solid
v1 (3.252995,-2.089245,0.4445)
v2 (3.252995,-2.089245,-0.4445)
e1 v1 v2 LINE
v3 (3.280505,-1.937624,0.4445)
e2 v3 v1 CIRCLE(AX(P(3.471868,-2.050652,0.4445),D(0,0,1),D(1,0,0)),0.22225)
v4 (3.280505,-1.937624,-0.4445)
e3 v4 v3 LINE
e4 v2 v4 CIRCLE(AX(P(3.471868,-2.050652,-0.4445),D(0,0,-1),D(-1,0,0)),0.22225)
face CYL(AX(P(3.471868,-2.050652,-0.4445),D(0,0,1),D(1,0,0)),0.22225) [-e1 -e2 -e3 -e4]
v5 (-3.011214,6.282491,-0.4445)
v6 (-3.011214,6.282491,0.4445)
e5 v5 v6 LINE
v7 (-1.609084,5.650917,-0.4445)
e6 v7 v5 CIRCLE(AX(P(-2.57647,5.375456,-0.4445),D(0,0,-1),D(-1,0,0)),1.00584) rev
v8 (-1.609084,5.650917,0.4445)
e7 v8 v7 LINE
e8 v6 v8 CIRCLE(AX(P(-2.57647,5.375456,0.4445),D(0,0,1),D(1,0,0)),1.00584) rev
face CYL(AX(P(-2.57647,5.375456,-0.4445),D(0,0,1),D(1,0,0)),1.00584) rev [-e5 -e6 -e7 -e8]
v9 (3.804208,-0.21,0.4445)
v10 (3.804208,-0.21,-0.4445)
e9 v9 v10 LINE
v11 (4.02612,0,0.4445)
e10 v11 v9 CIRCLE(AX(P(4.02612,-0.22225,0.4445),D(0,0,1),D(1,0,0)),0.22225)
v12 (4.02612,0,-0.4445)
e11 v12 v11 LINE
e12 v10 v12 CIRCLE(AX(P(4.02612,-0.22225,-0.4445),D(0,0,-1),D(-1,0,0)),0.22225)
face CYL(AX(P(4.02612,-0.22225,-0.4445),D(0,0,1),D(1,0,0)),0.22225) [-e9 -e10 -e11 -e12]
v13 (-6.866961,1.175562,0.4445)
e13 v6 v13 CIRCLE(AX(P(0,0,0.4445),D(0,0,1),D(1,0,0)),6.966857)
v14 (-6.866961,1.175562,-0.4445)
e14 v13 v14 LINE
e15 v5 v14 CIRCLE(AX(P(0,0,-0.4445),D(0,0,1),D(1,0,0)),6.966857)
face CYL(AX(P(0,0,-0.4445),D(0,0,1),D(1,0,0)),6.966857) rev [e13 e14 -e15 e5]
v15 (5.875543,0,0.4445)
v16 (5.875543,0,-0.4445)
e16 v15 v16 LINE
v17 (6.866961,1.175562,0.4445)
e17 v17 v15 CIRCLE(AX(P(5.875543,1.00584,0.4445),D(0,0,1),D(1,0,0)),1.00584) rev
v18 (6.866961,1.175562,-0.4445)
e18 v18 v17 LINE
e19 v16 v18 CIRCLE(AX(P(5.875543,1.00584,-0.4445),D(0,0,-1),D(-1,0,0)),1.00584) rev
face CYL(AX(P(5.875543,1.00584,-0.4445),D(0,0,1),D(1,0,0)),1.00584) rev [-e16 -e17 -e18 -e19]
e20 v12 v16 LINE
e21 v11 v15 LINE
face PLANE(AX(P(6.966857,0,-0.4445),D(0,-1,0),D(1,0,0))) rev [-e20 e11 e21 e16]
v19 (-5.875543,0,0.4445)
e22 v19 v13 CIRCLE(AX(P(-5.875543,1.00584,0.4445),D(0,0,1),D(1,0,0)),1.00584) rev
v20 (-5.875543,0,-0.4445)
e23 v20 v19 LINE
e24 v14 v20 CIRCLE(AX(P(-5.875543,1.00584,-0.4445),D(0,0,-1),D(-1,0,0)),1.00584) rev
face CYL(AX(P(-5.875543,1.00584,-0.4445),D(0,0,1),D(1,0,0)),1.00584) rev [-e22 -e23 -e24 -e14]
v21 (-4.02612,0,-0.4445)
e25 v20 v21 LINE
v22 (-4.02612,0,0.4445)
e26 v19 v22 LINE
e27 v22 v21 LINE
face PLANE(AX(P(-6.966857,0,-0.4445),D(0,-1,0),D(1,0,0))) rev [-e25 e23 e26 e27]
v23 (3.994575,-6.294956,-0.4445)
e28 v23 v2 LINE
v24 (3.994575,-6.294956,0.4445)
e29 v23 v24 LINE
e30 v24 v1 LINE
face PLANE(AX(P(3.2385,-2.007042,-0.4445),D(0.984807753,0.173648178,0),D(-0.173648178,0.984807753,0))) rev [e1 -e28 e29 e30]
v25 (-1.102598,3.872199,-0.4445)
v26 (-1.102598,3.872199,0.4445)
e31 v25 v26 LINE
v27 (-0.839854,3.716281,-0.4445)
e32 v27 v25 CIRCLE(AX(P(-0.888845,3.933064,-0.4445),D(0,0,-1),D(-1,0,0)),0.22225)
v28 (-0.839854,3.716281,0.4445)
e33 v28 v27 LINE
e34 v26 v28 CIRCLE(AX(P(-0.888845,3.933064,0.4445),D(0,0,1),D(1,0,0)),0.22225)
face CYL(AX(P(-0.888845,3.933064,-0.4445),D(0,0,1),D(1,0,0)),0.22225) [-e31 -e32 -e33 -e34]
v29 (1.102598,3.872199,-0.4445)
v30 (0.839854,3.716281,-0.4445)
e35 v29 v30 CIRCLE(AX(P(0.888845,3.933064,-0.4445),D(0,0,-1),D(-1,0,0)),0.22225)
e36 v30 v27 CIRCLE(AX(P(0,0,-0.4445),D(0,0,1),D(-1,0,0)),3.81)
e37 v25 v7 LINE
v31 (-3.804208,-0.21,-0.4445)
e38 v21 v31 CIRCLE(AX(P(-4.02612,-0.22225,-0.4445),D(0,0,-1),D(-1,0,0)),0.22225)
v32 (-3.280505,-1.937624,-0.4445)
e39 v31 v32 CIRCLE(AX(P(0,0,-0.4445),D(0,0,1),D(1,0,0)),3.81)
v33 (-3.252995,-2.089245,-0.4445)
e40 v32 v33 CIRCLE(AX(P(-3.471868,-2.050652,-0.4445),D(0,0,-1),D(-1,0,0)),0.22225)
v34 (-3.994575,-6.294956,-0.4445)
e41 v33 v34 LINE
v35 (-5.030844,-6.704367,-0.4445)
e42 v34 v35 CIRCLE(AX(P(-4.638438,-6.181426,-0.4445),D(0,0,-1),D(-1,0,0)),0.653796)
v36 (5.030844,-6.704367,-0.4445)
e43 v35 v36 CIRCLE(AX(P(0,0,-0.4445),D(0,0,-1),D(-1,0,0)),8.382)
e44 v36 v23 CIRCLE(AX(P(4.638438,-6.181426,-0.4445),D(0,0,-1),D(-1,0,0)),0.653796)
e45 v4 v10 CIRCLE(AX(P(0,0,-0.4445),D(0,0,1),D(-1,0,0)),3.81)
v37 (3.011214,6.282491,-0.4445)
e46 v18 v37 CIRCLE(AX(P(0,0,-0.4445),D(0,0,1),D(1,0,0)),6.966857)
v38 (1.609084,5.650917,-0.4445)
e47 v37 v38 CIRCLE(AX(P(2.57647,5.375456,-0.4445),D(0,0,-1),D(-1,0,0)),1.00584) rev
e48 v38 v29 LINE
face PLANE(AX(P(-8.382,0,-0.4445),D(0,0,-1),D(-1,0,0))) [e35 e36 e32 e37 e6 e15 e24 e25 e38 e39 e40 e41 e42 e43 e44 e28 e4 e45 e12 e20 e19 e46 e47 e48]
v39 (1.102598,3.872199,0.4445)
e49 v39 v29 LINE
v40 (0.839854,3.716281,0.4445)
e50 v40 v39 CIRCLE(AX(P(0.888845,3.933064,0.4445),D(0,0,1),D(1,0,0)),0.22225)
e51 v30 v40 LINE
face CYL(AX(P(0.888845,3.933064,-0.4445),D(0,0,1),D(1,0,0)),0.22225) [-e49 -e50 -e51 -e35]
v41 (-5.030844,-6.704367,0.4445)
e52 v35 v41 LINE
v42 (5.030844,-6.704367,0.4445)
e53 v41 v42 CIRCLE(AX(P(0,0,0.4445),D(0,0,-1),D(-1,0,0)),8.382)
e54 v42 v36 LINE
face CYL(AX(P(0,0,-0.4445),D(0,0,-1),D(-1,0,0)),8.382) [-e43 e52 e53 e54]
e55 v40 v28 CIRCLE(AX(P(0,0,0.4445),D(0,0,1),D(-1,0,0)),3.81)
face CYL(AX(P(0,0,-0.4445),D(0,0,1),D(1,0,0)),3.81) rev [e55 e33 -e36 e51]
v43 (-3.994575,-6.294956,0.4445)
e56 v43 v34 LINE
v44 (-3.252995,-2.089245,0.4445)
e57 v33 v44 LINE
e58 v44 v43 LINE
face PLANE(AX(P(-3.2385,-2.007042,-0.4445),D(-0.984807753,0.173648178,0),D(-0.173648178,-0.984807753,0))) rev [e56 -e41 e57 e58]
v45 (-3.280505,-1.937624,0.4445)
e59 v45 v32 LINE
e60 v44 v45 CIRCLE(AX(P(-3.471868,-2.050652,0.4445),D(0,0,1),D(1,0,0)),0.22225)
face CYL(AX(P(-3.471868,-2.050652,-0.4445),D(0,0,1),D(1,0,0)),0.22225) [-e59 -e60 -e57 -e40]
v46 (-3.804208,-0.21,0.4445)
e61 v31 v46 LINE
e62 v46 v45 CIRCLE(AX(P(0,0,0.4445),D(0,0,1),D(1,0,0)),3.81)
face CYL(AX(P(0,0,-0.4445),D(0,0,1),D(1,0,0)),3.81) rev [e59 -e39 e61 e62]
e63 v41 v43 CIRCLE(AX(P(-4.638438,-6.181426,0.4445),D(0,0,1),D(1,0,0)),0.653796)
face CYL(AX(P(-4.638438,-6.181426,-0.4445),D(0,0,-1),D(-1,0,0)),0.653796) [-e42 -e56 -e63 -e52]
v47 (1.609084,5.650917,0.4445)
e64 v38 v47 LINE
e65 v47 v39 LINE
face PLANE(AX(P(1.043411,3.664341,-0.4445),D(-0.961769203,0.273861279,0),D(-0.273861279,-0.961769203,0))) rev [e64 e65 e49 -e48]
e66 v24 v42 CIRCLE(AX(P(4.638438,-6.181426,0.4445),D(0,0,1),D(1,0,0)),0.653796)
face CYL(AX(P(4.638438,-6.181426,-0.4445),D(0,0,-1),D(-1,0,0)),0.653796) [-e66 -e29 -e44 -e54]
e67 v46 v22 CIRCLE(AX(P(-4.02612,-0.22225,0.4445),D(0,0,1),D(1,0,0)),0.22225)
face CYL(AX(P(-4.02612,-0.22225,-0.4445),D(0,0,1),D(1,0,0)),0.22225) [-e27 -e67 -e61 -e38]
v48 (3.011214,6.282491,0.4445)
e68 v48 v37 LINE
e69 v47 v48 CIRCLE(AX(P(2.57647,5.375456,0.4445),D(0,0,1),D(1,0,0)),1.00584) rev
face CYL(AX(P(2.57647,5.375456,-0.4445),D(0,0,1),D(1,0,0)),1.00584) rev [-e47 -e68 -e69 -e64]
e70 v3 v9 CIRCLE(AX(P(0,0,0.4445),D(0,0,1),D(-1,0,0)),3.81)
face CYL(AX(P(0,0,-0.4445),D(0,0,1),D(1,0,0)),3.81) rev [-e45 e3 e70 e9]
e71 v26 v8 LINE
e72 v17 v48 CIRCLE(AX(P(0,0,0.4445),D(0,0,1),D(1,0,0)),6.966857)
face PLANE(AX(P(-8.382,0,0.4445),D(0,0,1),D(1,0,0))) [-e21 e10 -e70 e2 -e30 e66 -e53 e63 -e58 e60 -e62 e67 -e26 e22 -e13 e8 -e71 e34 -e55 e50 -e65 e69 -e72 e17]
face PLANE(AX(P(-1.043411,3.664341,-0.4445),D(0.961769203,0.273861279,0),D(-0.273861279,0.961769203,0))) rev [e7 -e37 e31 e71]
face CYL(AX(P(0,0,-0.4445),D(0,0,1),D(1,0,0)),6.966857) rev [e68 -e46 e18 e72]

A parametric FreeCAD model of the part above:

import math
import FreeCAD as App
import Part
import Sketcher
from FreeCAD import Vector
Q = App.Units.Quantity


def edges_at(feature, points):
    """Names of the edges that pass closest to the given points."""
    edges = feature.Shape.Edges
    near = lambda p: min(range(len(edges)), key=lambda i: edges[i].distToShape(Part.Vertex(*p))[0])
    return sorted({f"Edge{near(p) + 1}" for p in points})

doc = App.newDocument("Part")
params = doc.addObject("Spreadsheet::Sheet", "Params")
for row, (alias, value) in enumerate([
    ("sketch1_width", "0.33 in"),
    ("sketch1_height", "0.035 in"),
    ("revolution_angle", "360 deg"),
    ("sketch2_radius", "0.15 in"),
    ("sketch2_radius2", "0.33 in"),
    ("fillet_radius", "0.0396 in"),
    ("fillet2_radius", "0.653796 mm"),
    ("fillet3_radius", "0.22225 mm"),
], start=1):
    params.set(f"A{row}", alias)
    params.set(f"B{row}", "=" + value)
    params.setAlias(f"B{row}", alias)

body = doc.addObject("PartDesign::Body", "Body")

# Sketch on XZ plane
sketch1 = doc.addObject("Sketcher::SketchObject", "Sketch")
body.addObject(sketch1)
sketch1.AttachmentSupport = (doc.XZ_Plane, [""])
sketch1.MapMode = "FlatFace"
sketch1.addGeometry([
    Part.LineSegment(Vector(-8.4, -0.4, 0), Vector(-8.4, 0.4, 0)),
    Part.LineSegment(Vector(-8.4, 0.4, 0), Vector(0, 0.4, 0)),
    Part.LineSegment(Vector(0, 0.4, 0), Vector(0, -0.4, 0)),
    Part.LineSegment(Vector(0, -0.4, 0), Vector(-8.4, -0.4, 0)),
], False)
sketch1.addConstraint([
    Sketcher.Constraint("Coincident", 0, 2, 1, 1),
    Sketcher.Constraint("Coincident", 1, 2, 2, 1),
    Sketcher.Constraint("Coincident", 2, 2, 3, 1),
    Sketcher.Constraint("Coincident", 3, 2, 0, 1),
    Sketcher.Constraint("Vertical", 0),
    Sketcher.Constraint("Horizontal", 1),
    Sketcher.Constraint("Vertical", 2),
    Sketcher.Constraint("Horizontal", 3),
    Sketcher.Constraint("Symmetric", 1, 2, 2, 2, -1, 1),
    Sketcher.Constraint("DistanceX", 1, 1, 1, 2, Q("0.33 in")),
    Sketcher.Constraint("DistanceY", 0, 1, 0, 2, Q("0.035 in")),
])
sketch1.setExpression("Constraints[9]", "Params.sketch1_width")
sketch1.setExpression("Constraints[10]", "Params.sketch1_height")
revolution = doc.addObject("PartDesign::Revolution", "Revolution")
body.addObject(revolution)
revolution.Profile = sketch1
revolution.ReferenceAxis = (sketch1, ["V_Axis"])
revolution.setExpression("Angle", "Params.revolution_angle")

# Sketch on XY plane
sketch2 = doc.addObject("Sketcher::SketchObject", "Sketch001")
body.addObject(sketch2)
sketch2.AttachmentSupport = (doc.XY_Plane, [""])
sketch2.MapMode = "FlatFace"
sketch2.addGeometry([
    Part.LineSegment(Vector(1.9, 6.7, 0), Vector(1, 3.7, 0)),  # 0
    Part.ArcOfCircle(Part.Circle(Vector(0, 0, 0), Vector(0, 0, 1), 3.8), math.radians(74), math.radians(106)),  # 1
    Part.LineSegment(Vector(-1, 3.7, 0), Vector(-1.9, 6.7, 0)),  # 2
    Part.ArcOfCircle(Part.Circle(Vector(0, 0, 0), Vector(0, 0, 1), 7), math.radians(106), math.radians(180)),  # 3
    Part.LineSegment(Vector(-7, 0, 0), Vector(-3.8, 0, 0)),  # 4
    Part.ArcOfCircle(Part.Circle(Vector(0, 0, 0), Vector(0, 0, 1), 3.8), math.radians(180), math.radians(212)),  # 5
    Part.LineSegment(Vector(-3.2, -2, 0), Vector(-4.2, -7.3, 0)),  # 6
    Part.ArcOfCircle(Part.Circle(Vector(0, 0, 0), Vector(0, 0, 1), 8.4), math.radians(-120), math.radians(-60)),  # 7
    Part.LineSegment(Vector(4.2, -7.3, 0), Vector(3.2, -2, 0)),  # 8
    Part.ArcOfCircle(Part.Circle(Vector(0, 0, 0), Vector(0, 0, 1), 3.8), math.radians(-32), math.radians(0)),  # 9
    Part.LineSegment(Vector(3.8, 0, 0), Vector(7, 0, 0)),  # 10
    Part.ArcOfCircle(Part.Circle(Vector(0, 0, 0), Vector(0, 0, 1), 7), math.radians(0), math.radians(74)),  # 11
], False)
sketch2.addConstraint([
    Sketcher.Constraint("Coincident", 0, 2, 1, 1),
    Sketcher.Constraint("Coincident", 1, 2, 2, 1),
    Sketcher.Constraint("Coincident", 2, 2, 3, 1),
    Sketcher.Constraint("Coincident", 3, 2, 4, 1),
    Sketcher.Constraint("Coincident", 4, 2, 5, 1),
    Sketcher.Constraint("Coincident", 5, 2, 6, 1),
    Sketcher.Constraint("Coincident", 6, 2, 7, 1),
    Sketcher.Constraint("Coincident", 7, 2, 8, 1),
    Sketcher.Constraint("Coincident", 8, 2, 9, 1),
    Sketcher.Constraint("Coincident", 9, 2, 10, 1),
    Sketcher.Constraint("Coincident", 10, 2, 11, 1),
    Sketcher.Constraint("Coincident", 11, 2, 0, 1),
    Sketcher.Constraint("Horizontal", 4),
    Sketcher.Constraint("Horizontal", 10),
    Sketcher.Constraint("Coincident", 1, 3, -1, 1),
    Sketcher.Constraint("Coincident", 3, 3, -1, 1),
    Sketcher.Constraint("Coincident", 5, 3, -1, 1),
    Sketcher.Constraint("Coincident", 7, 3, -1, 1),
    Sketcher.Constraint("Coincident", 9, 3, -1, 1),
    Sketcher.Constraint("Coincident", 11, 3, -1, 1),
    Sketcher.Constraint("Equal", 1, 5),
    Sketcher.Constraint("Equal", 5, 9),
    Sketcher.Constraint("Equal", 3, 11),
    Sketcher.Constraint("PointOnObject", 3, 2, -1),
    Sketcher.Constraint("PointOnObject", 9, 2, -1),
    Sketcher.Constraint("Horizontal", 0, 2, 1, 2),
    Sketcher.Constraint("Horizontal", 6, 2, 7, 2),
    Sketcher.Constraint("Horizontal", 5, 2, 8, 2),
    Sketcher.Constraint("Horizontal", 2, 2, 11, 2),
    Sketcher.Constraint("Radius", 1, Q("0.15 in")),
    Sketcher.Constraint("Radius", 7, Q("0.33 in")),
    Sketcher.Constraint("Angle", 6, Q("-100 deg")),
    Sketcher.Constraint("DistanceX", 5, 2, -1, 1, Q("0.1275 in")),
    Sketcher.Constraint("Radius", 3, Q("6.966857 mm")),
    Sketcher.Constraint("DistanceX", -1, 1, 0, 2, Q("1.043411 mm")),
    Sketcher.Constraint("DistanceY", -1, 1, 2, 2, Q("6.700509 mm")),
])
sketch2.setExpression("Constraints[29]", "Params.sketch2_radius")
sketch2.setExpression("Constraints[30]", "Params.sketch2_radius2")
pocket1 = doc.addObject("PartDesign::Pocket", "Pocket")
body.addObject(pocket1)
pocket1.Profile = sketch2
pocket1.Type = "ThroughAll"
pocket1.Midplane = True
doc.recompute()

fillet = doc.addObject("PartDesign::Fillet", "Fillet")
body.addObject(fillet)
fillet.Base = (pocket1, edges_at(pocket1, [
    (1.908, 6.701, 0),
    (6.967, 0, 0),
    (-6.967, 0, 0),
    (-1.908, 6.701, 0),
]))
fillet.setExpression("Radius", "Params.fillet_radius")
doc.recompute()

fillet2 = doc.addObject("PartDesign::Fillet", "Fillet001")
body.addObject(fillet2)
fillet2.Base = (fillet, edges_at(fillet, [(4.167, -7.273, 0), (-4.167, -7.273, 0)]))
fillet2.setExpression("Radius", "Params.fillet2_radius")
doc.recompute()

fillet3 = doc.addObject("PartDesign::Fillet", "Fillet002")
body.addObject(fillet3)
fillet3.Base = (fillet2, edges_at(fillet2, [
    (-1.043, 3.664, 0),
    (1.043, 3.664, 0),
    (3.81, 0, 0),
    (3.239, -2.007, 0),
    (-3.239, -2.007, 0),
    (-3.81, 0, 0),
]))
fillet3.setExpression("Radius", "Params.fillet3_radius")

doc.recompute()
